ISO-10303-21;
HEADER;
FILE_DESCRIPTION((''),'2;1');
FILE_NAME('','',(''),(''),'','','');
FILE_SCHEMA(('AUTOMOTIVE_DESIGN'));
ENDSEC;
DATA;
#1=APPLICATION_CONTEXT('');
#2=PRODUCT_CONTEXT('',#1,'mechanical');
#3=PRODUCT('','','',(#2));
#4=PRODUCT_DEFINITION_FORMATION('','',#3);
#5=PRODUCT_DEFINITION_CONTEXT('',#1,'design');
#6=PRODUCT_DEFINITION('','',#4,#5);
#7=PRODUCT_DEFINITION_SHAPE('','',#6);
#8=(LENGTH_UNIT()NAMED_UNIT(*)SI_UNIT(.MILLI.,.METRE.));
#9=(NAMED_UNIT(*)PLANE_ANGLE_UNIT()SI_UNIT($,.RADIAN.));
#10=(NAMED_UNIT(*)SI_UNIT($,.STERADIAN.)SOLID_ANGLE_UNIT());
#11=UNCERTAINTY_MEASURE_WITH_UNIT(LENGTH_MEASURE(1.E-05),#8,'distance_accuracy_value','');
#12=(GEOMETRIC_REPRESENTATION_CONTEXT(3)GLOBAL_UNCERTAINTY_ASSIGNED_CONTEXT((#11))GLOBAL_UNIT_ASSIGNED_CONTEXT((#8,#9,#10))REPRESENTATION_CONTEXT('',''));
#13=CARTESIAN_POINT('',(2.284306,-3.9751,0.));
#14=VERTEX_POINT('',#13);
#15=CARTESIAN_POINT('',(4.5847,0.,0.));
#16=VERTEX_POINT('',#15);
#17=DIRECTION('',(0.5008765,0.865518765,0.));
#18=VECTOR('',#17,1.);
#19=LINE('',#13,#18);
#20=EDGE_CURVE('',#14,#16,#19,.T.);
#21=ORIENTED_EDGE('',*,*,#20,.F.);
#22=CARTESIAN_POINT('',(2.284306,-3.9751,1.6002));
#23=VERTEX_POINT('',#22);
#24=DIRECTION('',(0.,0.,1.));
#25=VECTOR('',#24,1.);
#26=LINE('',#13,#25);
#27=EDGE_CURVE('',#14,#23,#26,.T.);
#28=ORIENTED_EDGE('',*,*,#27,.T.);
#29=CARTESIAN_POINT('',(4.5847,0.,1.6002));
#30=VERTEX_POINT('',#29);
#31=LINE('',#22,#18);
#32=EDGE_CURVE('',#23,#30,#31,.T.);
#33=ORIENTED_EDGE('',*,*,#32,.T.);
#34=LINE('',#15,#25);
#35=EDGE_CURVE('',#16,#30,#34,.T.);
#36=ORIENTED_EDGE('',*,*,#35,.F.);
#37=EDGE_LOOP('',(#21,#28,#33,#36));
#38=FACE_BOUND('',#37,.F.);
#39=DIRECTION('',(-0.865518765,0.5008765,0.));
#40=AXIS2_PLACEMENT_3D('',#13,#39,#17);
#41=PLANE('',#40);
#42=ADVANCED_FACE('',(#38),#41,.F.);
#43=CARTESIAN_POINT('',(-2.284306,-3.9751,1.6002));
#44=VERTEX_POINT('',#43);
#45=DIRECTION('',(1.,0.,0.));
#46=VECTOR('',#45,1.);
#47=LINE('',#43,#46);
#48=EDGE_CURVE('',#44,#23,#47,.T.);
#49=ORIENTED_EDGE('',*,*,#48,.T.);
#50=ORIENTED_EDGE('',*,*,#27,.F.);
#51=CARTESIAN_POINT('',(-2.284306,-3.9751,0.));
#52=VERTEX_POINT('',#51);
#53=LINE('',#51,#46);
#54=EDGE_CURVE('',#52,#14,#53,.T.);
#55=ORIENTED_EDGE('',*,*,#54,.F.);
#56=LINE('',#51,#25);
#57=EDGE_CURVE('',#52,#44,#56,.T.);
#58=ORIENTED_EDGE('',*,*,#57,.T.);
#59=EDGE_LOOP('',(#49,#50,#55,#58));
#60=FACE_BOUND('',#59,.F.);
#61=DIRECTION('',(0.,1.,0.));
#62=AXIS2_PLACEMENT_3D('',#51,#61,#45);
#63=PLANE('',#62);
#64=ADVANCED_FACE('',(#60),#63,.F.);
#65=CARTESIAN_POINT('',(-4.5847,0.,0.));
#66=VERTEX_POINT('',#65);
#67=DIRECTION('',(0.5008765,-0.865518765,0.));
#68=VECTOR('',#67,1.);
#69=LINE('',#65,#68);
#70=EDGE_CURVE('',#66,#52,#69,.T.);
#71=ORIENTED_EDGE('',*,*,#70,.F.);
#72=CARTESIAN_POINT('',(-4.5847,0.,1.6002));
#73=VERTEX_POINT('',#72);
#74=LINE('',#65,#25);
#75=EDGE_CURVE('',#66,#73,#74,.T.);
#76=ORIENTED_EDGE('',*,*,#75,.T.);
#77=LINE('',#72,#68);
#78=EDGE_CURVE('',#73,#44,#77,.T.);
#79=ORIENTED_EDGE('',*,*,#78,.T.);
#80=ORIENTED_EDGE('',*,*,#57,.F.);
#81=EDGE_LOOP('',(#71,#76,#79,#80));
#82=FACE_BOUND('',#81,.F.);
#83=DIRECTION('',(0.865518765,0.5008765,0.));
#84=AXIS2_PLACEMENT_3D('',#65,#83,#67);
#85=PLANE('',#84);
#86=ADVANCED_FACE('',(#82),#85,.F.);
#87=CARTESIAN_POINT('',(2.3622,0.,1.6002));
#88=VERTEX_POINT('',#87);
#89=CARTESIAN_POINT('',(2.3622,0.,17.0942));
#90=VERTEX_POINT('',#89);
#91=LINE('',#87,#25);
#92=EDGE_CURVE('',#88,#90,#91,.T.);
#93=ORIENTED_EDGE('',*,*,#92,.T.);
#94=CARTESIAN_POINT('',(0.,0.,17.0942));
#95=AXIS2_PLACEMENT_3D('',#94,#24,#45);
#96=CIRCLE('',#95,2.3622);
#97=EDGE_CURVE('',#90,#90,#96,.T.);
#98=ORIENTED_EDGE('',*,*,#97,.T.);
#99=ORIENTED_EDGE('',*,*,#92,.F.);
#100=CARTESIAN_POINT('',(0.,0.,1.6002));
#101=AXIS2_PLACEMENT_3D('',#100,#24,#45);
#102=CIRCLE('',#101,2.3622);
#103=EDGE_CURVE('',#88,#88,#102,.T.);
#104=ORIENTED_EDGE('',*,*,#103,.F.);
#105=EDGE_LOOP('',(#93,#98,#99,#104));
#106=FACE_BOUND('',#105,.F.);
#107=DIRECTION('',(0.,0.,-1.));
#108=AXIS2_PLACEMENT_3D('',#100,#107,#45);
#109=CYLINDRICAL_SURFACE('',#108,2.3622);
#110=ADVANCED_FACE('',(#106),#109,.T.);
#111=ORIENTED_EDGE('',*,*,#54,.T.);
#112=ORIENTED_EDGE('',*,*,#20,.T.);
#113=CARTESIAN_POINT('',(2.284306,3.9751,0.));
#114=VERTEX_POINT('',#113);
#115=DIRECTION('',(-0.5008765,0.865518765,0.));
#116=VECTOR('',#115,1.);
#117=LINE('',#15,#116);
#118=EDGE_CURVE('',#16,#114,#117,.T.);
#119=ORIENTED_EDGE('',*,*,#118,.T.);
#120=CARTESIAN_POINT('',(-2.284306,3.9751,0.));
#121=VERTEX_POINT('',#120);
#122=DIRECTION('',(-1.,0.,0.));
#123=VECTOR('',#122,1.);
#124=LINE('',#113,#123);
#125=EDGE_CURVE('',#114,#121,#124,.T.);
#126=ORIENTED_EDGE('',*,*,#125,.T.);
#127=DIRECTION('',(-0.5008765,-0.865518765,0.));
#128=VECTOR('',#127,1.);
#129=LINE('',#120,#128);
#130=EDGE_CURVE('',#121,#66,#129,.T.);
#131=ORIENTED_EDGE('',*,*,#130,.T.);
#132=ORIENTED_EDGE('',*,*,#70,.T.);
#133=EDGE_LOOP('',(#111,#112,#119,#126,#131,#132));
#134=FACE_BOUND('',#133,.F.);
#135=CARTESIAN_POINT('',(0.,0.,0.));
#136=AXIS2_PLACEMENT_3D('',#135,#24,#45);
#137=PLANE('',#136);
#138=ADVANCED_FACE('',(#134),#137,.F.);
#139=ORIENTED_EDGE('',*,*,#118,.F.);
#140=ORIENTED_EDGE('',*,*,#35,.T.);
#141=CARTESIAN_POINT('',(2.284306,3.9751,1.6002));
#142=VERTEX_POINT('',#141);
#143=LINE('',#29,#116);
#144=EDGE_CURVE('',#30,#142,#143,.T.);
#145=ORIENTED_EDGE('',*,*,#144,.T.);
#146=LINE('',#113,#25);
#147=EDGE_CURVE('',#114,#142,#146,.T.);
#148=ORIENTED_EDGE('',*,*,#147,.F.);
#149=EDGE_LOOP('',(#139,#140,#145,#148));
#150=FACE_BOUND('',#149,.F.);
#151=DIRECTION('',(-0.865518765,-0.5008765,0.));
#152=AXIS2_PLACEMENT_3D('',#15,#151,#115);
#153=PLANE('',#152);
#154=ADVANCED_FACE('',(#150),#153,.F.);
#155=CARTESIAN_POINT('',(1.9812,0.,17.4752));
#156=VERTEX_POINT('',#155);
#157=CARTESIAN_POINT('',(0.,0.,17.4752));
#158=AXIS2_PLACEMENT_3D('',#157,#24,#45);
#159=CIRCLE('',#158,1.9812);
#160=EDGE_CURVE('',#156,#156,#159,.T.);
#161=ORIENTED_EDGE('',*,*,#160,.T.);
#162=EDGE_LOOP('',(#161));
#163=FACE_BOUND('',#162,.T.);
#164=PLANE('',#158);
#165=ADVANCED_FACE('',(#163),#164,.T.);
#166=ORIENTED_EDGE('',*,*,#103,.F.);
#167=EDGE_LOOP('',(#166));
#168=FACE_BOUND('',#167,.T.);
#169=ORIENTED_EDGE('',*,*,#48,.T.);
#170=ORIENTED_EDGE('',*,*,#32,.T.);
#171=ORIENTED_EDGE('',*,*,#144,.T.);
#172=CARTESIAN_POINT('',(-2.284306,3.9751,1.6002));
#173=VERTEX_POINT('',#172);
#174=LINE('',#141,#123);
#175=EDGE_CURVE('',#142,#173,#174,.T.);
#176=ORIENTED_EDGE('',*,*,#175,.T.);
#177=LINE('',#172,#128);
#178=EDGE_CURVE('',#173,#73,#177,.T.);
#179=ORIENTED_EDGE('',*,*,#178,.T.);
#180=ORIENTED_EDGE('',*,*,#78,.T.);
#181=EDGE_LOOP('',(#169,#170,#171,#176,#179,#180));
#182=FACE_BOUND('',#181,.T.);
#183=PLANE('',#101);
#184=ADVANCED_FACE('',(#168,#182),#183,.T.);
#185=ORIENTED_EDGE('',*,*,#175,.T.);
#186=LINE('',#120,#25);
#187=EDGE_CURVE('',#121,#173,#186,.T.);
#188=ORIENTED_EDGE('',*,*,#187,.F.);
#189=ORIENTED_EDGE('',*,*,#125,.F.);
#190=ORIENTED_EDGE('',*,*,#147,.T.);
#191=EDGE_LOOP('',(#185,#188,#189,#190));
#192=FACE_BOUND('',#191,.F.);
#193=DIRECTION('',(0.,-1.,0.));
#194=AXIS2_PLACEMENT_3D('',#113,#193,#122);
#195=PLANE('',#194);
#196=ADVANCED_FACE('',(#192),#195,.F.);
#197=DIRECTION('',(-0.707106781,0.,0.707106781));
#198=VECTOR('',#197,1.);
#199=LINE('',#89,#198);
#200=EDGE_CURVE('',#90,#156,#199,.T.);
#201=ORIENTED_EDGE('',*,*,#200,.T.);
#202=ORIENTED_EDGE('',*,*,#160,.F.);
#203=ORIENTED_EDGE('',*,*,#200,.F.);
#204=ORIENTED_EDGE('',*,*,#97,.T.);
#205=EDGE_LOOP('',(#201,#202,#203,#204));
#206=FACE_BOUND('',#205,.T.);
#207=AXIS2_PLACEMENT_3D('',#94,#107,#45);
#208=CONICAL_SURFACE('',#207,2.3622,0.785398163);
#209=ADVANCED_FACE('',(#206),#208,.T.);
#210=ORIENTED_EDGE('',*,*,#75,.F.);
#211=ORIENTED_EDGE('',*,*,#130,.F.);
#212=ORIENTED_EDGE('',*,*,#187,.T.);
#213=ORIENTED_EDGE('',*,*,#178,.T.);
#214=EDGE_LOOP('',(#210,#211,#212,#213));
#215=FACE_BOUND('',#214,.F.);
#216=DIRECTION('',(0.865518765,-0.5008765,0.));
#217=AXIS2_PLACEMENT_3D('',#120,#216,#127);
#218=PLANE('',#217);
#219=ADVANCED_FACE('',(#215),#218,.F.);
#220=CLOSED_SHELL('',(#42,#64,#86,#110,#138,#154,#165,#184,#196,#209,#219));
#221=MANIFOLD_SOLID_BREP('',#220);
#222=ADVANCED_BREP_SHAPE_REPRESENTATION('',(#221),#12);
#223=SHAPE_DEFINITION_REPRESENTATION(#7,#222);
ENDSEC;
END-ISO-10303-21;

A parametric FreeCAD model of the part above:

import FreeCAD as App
import Part
import Sketcher
from FreeCAD import Vector
Q = App.Units.Quantity


def edges_at(feature, points):
    """Names of the edges that pass closest to the given points."""
    edges = feature.Shape.Edges
    near = lambda p: min(range(len(edges)), key=lambda i: edges[i].distToShape(Part.Vertex(*p))[0])
    return sorted({f"Edge{near(p) + 1}" for p in points})


def add_polygon(sketch, points):
    """Adds a closed chain of lines whose ends are joined by coincident constraints."""
    first, n = sketch.GeometryCount, len(points)
    for a, b in zip(points, points[1:] + points[:1]):
        sketch.addGeometry(Part.LineSegment(App.Vector(*a, 0), App.Vector(*b, 0)), False)
    for i in range(n):
        sketch.addConstraint(Sketcher.Constraint("Coincident", first + i, 2, first + (i + 1) % n, 1))

doc = App.newDocument("Part")
params = doc.addObject("Spreadsheet::Sheet", "Params")
for row, (alias, value) in enumerate([
    ("pad1_length", "0.063 in"),
    ("sketch2_diameter", "0.186 in"),
    ("pad2_length", "0.625 in"),
    ("chamfer_size", "0.015 in"),
], start=1):
    params.set(f"A{row}", alias)
    params.set(f"B{row}", "=" + value)
    params.setAlias(f"B{row}", alias)

body = doc.addObject("PartDesign::Body", "Body")

# Sketch on XY plane
sketch1 = body.newObject("Sketcher::SketchObject", "Sketch")
sketch1.AttachmentSupport = (doc.getObject("XY_Plane"), [""])
sketch1.MapMode = "FlatFace"
add_polygon(sketch1, [(2.3, 4), (-2.3, 4), (-4.6, 0), (-2.3, -4), (2.3, -4), (4.6, 0)])  # lines 0-5
sketch1.addConstraint([
    Sketcher.Constraint("Horizontal", 0),
    Sketcher.Constraint("Horizontal", 3),
    Sketcher.Constraint("Symmetric", 0, 2, 3, 2, -1, 1),
    Sketcher.Constraint("Symmetric", 1, 2, 4, 2, -1, 1),
    Sketcher.Constraint("PointOnObject", 1, 2, -1),
    Sketcher.Constraint("Parallel", 2, 5),
    Sketcher.Constraint("Vertical", 0, 2, 2, 2),
    Sketcher.Constraint("DistanceY", 2, 2, 0, 2, Q("0.313 in")),
    Sketcher.Constraint("DistanceX", 1, 2, 4, 2, Q("0.361 in")),
    Sketcher.Constraint("DistanceX", 0, 2, 0, 1, 4.568612),
])
pad1 = body.newObject("PartDesign::Pad", "Pad")
pad1.Profile = sketch1
pad1.setExpression("Length", "Params.pad1_length")

# Sketch on XY plane
sketch2 = body.newObject("Sketcher::SketchObject", "Sketch001")
sketch2.AttachmentSupport = (doc.getObject("XY_Plane"), [""])
sketch2.MapMode = "FlatFace"
sketch2.AttachmentOffset = App.Placement(Vector(0, 0, 0.063 * 25.4), App.Rotation())
sketch2.addGeometry(Part.Circle(Vector(0, 0, 0), Vector(0, 0, 1), 2.4), False)
sketch2.addConstraint([
    Sketcher.Constraint("Coincident", 0, 3, -1, 1),
    Sketcher.Constraint("Diameter", 0, Q("0.186 in")),
])
sketch2.setExpression("Constraints[1]", "Params.sketch2_diameter")
pad2 = body.newObject("PartDesign::Pad", "Pad001")
pad2.Profile = sketch2
pad2.setExpression("Length", "Params.pad2_length")
doc.recompute()

chamfer = body.newObject("PartDesign::Chamfer", "Chamfer")
chamfer.Base = (pad2, edges_at(pad2, [(-2.362, 0, 17.475)]))
chamfer.setExpression("Size", "Params.chamfer_size")

doc.recompute()
